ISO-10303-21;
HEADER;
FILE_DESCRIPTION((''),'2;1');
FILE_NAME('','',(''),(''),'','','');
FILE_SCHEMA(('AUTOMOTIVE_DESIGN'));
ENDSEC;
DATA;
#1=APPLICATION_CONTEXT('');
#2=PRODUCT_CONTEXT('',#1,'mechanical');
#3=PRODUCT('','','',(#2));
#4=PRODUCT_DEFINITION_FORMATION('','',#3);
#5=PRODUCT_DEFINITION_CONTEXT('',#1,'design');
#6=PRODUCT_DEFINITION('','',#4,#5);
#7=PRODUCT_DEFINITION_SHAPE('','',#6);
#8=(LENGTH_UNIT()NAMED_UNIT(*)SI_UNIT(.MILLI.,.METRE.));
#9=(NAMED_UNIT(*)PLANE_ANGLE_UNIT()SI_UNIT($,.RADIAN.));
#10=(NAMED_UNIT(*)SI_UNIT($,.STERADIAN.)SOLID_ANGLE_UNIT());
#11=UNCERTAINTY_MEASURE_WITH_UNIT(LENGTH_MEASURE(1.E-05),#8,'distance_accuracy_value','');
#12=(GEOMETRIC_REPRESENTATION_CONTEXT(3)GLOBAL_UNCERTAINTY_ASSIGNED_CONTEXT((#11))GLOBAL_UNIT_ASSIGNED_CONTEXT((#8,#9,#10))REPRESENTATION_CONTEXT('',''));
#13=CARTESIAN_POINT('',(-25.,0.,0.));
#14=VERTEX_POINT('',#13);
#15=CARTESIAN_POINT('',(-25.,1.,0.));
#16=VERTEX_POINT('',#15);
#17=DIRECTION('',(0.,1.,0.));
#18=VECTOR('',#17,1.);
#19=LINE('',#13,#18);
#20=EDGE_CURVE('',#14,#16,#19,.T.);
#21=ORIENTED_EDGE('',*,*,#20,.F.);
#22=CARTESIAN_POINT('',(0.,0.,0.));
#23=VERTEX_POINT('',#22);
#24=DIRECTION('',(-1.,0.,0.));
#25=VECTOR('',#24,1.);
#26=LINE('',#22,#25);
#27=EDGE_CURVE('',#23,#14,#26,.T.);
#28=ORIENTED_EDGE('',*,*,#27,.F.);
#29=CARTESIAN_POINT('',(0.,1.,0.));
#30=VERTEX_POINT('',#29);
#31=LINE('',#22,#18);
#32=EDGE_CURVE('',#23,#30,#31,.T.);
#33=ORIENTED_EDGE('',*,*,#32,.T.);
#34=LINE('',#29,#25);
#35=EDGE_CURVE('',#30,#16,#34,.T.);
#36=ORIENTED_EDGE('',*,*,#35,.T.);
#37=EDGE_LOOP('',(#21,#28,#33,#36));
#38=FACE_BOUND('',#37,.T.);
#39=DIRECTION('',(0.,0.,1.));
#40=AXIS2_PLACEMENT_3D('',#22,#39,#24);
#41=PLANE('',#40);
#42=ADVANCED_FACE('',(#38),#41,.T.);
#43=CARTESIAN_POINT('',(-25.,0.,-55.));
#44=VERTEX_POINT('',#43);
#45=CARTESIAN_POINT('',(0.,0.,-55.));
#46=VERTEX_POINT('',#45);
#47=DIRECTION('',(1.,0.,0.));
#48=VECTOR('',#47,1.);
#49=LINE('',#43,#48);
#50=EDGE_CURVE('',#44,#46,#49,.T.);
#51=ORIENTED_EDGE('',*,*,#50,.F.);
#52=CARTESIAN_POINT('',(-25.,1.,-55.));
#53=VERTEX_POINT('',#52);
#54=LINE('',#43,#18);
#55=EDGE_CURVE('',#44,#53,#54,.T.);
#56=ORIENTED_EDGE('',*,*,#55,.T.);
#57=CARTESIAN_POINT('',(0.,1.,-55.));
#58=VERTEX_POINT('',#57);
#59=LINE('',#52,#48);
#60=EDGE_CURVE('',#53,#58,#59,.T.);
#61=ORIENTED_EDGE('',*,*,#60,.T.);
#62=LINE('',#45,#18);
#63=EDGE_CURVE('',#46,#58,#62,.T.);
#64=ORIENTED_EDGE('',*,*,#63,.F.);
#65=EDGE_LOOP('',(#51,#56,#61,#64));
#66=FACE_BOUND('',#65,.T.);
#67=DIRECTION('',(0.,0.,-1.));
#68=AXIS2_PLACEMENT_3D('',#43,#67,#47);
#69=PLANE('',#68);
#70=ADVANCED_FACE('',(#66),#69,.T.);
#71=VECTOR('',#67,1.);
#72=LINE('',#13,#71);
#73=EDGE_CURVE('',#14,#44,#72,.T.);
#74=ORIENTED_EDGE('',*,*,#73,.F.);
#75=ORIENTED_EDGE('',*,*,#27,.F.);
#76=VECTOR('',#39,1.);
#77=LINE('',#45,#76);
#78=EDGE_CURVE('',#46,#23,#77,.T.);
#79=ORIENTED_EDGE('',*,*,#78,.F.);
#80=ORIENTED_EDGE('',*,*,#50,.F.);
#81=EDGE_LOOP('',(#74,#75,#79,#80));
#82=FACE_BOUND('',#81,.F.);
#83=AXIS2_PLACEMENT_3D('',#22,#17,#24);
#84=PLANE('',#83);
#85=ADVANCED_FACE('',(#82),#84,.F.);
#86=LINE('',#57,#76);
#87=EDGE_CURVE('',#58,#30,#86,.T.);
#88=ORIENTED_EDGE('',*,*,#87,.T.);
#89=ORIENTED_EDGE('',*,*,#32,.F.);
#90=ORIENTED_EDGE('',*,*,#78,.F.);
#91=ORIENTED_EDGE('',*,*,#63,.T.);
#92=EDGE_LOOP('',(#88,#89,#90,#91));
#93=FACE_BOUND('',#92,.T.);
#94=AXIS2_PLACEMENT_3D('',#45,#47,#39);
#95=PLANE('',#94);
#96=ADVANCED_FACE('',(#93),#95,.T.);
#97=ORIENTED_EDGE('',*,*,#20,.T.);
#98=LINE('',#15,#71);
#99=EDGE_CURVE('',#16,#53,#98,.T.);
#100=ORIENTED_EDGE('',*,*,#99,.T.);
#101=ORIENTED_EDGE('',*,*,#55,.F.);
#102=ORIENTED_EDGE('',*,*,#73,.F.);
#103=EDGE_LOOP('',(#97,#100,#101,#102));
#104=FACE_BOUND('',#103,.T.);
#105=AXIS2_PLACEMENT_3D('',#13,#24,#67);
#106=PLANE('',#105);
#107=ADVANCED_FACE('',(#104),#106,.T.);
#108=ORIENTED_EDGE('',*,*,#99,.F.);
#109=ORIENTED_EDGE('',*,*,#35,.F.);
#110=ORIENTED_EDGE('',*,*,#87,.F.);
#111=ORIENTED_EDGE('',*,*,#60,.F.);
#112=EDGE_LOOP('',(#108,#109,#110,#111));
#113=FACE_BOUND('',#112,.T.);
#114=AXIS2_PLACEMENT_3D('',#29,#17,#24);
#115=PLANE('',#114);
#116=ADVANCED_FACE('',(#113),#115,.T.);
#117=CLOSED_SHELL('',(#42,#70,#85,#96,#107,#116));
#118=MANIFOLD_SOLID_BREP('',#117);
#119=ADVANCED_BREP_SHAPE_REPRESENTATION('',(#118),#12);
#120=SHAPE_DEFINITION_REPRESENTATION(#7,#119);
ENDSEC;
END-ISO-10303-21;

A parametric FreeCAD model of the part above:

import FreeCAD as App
import Part
import Sketcher
from FreeCAD import Vector

doc = App.newDocument("Part")
params = doc.addObject("Spreadsheet::Sheet", "Params")
for row, (alias, value) in enumerate([
    ("sketch1_width", "25 mm"),
    ("sketch1_height", "55 mm"),
    ("pad1_length", "1 mm"),
], start=1):
    params.set(f"A{row}", alias)
    params.set(f"B{row}", "=" + value)
    params.setAlias(f"B{row}", alias)

body = doc.addObject("PartDesign::Body", "Body")

sketch1 = body.newObject("Sketcher::SketchObject", "Sketch")
sketch1.AttachmentSupport = (doc.getObject("XZ_Plane"), [""])
sketch1.MapMode = "FlatFace"
sketch1.addGeometry(Part.LineSegment(Vector(-25, 0, 0), Vector(0, 0, 0)), False)
sketch1.addGeometry(Part.LineSegment(Vector(0, 0, 0), Vector(0, -55, 0)), False)
sketch1.addGeometry(Part.LineSegment(Vector(0, -55, 0), Vector(-25, -55, 0)), False)
sketch1.addGeometry(Part.LineSegment(Vector(-25, -55, 0), Vector(-25, 0, 0)), False)
sketch1.addConstraint(Sketcher.Constraint("Coincident", 0, 2, 1, 1))
sketch1.addConstraint(Sketcher.Constraint("Coincident", 1, 2, 2, 1))
sketch1.addConstraint(Sketcher.Constraint("Coincident", 2, 2, 3, 1))
sketch1.addConstraint(Sketcher.Constraint("Coincident", 3, 2, 0, 1))
sketch1.addConstraint(Sketcher.Constraint("Horizontal", 0))
sketch1.addConstraint(Sketcher.Constraint("Vertical", 1))
sketch1.addConstraint(Sketcher.Constraint("Horizontal", 2))
sketch1.addConstraint(Sketcher.Constraint("Vertical", 3))
sketch1.addConstraint(Sketcher.Constraint("Coincident", 0, 2, -1, 1))
sketch1.addConstraint(Sketcher.Constraint("DistanceX", 0, 1, 0, 2, 25.0))
sketch1.addConstraint(Sketcher.Constraint("DistanceY", 1, 2, 1, 1, 55.0))
sketch1.setExpression("Constraints[9]", "Params.sketch1_width")
sketch1.setExpression("Constraints[10]", "Params.sketch1_height")
pad1 = body.newObject("PartDesign::Pad", "Pad")
pad1.Profile = sketch1
pad1.setExpression("Length", "Params.pad1_length")
pad1.Reversed = True

doc.recompute()
